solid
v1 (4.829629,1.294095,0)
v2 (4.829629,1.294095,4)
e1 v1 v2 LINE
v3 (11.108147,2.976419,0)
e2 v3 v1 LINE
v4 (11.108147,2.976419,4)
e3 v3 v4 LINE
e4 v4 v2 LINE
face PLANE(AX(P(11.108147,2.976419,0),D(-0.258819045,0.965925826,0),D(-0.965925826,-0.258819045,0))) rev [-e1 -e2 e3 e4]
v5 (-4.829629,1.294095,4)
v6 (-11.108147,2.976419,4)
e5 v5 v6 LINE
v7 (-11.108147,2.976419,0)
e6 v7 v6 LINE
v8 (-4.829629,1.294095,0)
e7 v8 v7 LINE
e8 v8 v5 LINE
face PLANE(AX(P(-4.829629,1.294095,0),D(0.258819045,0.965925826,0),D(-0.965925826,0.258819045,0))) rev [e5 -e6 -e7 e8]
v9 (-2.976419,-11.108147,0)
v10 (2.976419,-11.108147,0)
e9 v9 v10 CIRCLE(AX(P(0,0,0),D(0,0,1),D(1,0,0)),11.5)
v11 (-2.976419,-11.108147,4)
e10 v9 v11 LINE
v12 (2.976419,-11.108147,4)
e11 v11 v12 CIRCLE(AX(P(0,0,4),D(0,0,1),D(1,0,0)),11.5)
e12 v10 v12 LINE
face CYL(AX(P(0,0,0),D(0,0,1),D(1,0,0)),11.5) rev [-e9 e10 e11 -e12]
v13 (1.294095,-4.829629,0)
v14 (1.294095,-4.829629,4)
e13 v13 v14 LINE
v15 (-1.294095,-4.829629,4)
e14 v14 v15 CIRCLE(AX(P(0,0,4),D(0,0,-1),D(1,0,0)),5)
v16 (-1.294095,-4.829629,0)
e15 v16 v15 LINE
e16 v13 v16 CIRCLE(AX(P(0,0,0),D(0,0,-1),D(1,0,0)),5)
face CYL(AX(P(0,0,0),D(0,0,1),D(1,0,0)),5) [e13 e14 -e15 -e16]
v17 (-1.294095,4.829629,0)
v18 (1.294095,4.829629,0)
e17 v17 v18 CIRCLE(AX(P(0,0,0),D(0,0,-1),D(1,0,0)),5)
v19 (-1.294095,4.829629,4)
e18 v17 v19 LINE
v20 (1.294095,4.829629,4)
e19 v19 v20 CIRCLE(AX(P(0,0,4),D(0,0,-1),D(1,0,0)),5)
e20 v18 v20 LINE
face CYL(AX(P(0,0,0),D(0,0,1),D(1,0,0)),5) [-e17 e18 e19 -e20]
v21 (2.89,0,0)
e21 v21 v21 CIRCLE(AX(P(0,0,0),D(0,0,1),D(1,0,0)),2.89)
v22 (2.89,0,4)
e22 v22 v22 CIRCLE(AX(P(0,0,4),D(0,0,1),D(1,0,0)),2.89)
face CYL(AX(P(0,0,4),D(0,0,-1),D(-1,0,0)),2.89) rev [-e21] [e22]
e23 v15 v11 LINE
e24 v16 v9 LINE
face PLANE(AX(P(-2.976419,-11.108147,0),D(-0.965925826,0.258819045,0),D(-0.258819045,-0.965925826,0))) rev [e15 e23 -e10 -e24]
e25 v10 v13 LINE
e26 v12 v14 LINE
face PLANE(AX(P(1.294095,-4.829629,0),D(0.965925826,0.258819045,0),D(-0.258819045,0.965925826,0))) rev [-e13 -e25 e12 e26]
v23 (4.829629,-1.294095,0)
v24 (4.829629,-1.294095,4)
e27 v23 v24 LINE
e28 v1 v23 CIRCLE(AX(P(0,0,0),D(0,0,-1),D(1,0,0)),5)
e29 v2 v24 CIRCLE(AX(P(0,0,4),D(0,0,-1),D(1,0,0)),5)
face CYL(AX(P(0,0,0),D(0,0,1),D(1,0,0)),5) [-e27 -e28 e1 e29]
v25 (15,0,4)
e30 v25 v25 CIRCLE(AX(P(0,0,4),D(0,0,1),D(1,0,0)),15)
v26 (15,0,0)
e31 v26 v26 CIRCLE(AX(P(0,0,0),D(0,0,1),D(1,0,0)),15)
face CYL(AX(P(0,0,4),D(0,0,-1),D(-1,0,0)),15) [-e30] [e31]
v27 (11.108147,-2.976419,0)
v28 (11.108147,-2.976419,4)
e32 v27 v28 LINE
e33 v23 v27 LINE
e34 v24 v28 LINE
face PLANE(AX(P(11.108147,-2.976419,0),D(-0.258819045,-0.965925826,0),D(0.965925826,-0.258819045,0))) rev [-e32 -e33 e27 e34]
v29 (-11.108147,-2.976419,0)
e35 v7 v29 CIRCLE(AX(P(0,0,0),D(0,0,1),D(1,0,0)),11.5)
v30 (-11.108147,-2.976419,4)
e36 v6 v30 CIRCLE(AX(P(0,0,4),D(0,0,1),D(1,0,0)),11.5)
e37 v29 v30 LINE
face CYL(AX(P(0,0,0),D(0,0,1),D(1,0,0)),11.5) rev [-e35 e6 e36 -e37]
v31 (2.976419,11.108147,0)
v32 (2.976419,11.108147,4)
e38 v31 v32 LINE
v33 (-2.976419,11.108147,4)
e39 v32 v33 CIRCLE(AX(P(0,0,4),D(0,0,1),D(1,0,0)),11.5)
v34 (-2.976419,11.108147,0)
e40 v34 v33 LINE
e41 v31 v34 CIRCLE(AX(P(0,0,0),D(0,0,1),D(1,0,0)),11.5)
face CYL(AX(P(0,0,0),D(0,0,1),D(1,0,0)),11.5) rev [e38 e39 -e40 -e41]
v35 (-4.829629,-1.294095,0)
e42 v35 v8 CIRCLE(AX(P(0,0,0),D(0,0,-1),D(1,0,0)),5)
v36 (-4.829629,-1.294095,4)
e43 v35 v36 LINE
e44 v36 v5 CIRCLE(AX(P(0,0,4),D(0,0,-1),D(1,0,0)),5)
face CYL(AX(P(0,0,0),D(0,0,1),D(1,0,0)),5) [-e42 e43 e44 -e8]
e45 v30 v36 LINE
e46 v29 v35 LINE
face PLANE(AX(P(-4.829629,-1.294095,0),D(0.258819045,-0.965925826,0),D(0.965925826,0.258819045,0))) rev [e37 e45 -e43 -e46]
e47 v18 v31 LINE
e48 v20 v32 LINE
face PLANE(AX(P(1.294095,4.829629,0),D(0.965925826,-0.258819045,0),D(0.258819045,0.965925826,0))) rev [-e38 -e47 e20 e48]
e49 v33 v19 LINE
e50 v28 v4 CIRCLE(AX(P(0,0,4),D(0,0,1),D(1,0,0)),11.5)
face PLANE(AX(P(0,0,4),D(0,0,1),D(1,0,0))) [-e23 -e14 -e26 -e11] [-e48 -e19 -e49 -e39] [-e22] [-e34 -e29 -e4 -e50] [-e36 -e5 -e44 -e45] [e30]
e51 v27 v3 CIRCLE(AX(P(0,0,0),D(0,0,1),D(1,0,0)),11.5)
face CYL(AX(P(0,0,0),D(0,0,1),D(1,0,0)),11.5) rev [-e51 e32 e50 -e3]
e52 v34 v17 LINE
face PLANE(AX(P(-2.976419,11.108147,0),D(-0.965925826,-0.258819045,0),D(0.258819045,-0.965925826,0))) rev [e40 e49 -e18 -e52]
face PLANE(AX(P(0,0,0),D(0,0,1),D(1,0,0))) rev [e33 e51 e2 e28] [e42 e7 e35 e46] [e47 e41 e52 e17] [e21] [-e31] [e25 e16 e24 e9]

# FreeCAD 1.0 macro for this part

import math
import FreeCAD as App
import Part
import Sketcher
from FreeCAD import Vector
Q = App.Units.Quantity

doc = App.newDocument("Part")
body = doc.addObject("PartDesign::Body", "Body")

# Sketch on XY plane
sketch1 = doc.addObject("Sketcher::SketchObject", "Sketch")
body.addObject(sketch1)
sketch1.AttachmentSupport = (doc.XY_Plane, [""])
sketch1.MapMode = "FlatFace"
sketch1.addGeometry([
    Part.Circle(Vector(0, 0, 0), Vector(0, 0, 1), 15),
    Part.Circle(Vector(0, 0, 0), Vector(0, 0, 1), 2.89),
], False)
sketch1.addConstraint([
    Sketcher.Constraint("Coincident", 0, 3, -1, 1),
    Sketcher.Constraint("Coincident", 1, 3, -1, 1),
    Sketcher.Constraint("Diameter", 0, Q("30 mm")),
    Sketcher.Constraint("Diameter", 1, Q("5.78 mm")),
])
pad1 = doc.addObject("PartDesign::Pad", "Pad")
body.addObject(pad1)
pad1.Profile = sketch1
pad1.Length = 4

# Sketch on XY plane
sketch2 = doc.addObject("Sketcher::SketchObject", "Sketch001")
body.addObject(sketch2)
sketch2.AttachmentSupport = (doc.XY_Plane, [""])
sketch2.MapMode = "FlatFace"
sketch2.AttachmentOffset = App.Placement(Vector(0, 0, 4), App.Rotation())
sketch2.addGeometry([
    Part.LineSegment(Vector(-11.108147, -2.976419, 0), Vector(-4.829629, -1.294095, 0)),  # 0
    Part.ArcOfCircle(Part.Circle(Vector(0, 0, 0), Vector(0, 0, 1), 5), math.radians(165), math.radians(195)),  # 1
    Part.LineSegment(Vector(-4.829629, 1.294095, 0), Vector(-11.108147, 2.976419, 0)),  # 2
    Part.ArcOfCircle(Part.Circle(Vector(0, 0, 0), Vector(0, 0, 1), 11.5), math.radians(165), math.radians(195)),  # 3
    Part.LineSegment(Vector(4.829629, -1.294095, 0), Vector(11.108147, -2.976419, 0)),  # 4
    Part.ArcOfCircle(Part.Circle(Vector(0, 0, 0), Vector(0, 0, 1), 11.5), math.radians(-15), math.radians(15)),  # 5
    Part.LineSegment(Vector(11.108147, 2.976419, 0), Vector(4.829629, 1.294095, 0)),  # 6
    Part.ArcOfCircle(Part.Circle(Vector(0, 0, 0), Vector(0, 0, 1), 5), math.radians(-15), math.radians(15)),  # 7
    Part.LineSegment(Vector(-2.976419, 11.108147, 0), Vector(-1.294095, 4.829629, 0)),  # 8
    Part.ArcOfCircle(Part.Circle(Vector(0, 0, 0), Vector(0, 0, 1), 5), math.radians(75), math.radians(105)),  # 9
    Part.LineSegment(Vector(1.294095, 4.829629, 0), Vector(2.976419, 11.108147, 0)),  # 10
    Part.ArcOfCircle(Part.Circle(Vector(0, 0, 0), Vector(0, 0, 1), 11.5), math.radians(75), math.radians(105)),  # 11
    Part.LineSegment(Vector(-1.294095, -4.829629, 0), Vector(-2.976419, -11.108147, 0)),  # 12
    Part.ArcOfCircle(Part.Circle(Vector(0, 0, 0), Vector(0, 0, 1), 11.5), math.radians(-105), math.radians(-75)),  # 13
    Part.LineSegment(Vector(2.976419, -11.108147, 0), Vector(1.294095, -4.829629, 0)),  # 14
    Part.ArcOfCircle(Part.Circle(Vector(0, 0, 0), Vector(0, 0, 1), 5), math.radians(-105), math.radians(-75)),  # 15
], False)
sketch2.addConstraint([
    Sketcher.Constraint("Coincident", 0, 2, 1, 2),
    Sketcher.Constraint("Coincident", 1, 1, 2, 1),
    Sketcher.Constraint("Coincident", 2, 2, 3, 1),
    Sketcher.Constraint("Coincident", 3, 2, 0, 1),
    Sketcher.Constraint("Coincident", 4, 2, 5, 1),
    Sketcher.Constraint("Coincident", 5, 2, 6, 1),
    Sketcher.Constraint("Coincident", 6, 2, 7, 2),
    Sketcher.Constraint("Coincident", 7, 1, 4, 1),
    Sketcher.Constraint("Coincident", 8, 2, 9, 2),
    Sketcher.Constraint("Coincident", 9, 1, 10, 1),
    Sketcher.Constraint("Coincident", 10, 2, 11, 1),
    Sketcher.Constraint("Coincident", 11, 2, 8, 1),
    Sketcher.Constraint("Coincident", 12, 2, 13, 1),
    Sketcher.Constraint("Coincident", 13, 2, 14, 1),
    Sketcher.Constraint("Coincident", 14, 2, 15, 2),
    Sketcher.Constraint("Coincident", 15, 1, 12, 1),
    Sketcher.Constraint("Coincident", 1, 3, -1, 1),
    Sketcher.Constraint("Coincident", 3, 3, -1, 1),
    Sketcher.Constraint("Coincident", 5, 3, -1, 1),
    Sketcher.Constraint("Coincident", 7, 3, -1, 1),
    Sketcher.Constraint("Coincident", 9, 3, -1, 1),
    Sketcher.Constraint("Coincident", 11, 3, -1, 1),
    Sketcher.Constraint("Coincident", 13, 3, -1, 1),
    Sketcher.Constraint("Coincident", 15, 3, -1, 1),
    Sketcher.Constraint("Equal", 3, 5),
    Sketcher.Constraint("Equal", 1, 7),
    Sketcher.Constraint("Equal", 7, 9),
    Sketcher.Constraint("Equal", 5, 11),
    Sketcher.Constraint("Equal", 11, 13),
    Sketcher.Constraint("Equal", 9, 15),
    Sketcher.Constraint("Parallel", 2, 4),
    Sketcher.Constraint("Parallel", 0, 6),
    Sketcher.Constraint("Perpendicular", 6, 8),
    Sketcher.Constraint("Perpendicular", 4, 10),
    Sketcher.Constraint("Parallel", 10, 12),
    Sketcher.Constraint("Parallel", 8, 14),
    Sketcher.Constraint("Horizontal", 3, 2, 4, 2),
    Sketcher.Constraint("Horizontal", 2, 2, 5, 2),
    Sketcher.Constraint("Horizontal", 1, 1, 6, 2),
    Sketcher.Constraint("Horizontal", 8, 2, 9, 1),
    Sketcher.Constraint("Horizontal", 12, 2, 13, 2),
    Sketcher.Constraint("Vertical", 0, 2, 1, 1),
    Sketcher.Constraint("Vertical", 11, 2, 12, 2),
    Sketcher.Constraint("Radius", 1, Q("5 mm")),
    Sketcher.Constraint("Radius", 3, Q("11.5 mm")),
    Sketcher.Constraint("Angle", 0, Q("15 deg")),
    Sketcher.Constraint("DistanceX", 0, 2, -1, 1, Q("4.829629 mm")),
    Sketcher.Constraint("DistanceY", -1, 1, 8, 2, Q("4.829629 mm")),
])
pocket1 = doc.addObject("PartDesign::Pocket", "Pocket")
body.addObject(pocket1)
pocket1.Profile = sketch2
pocket1.Type = "ThroughAll"

doc.recompute()
